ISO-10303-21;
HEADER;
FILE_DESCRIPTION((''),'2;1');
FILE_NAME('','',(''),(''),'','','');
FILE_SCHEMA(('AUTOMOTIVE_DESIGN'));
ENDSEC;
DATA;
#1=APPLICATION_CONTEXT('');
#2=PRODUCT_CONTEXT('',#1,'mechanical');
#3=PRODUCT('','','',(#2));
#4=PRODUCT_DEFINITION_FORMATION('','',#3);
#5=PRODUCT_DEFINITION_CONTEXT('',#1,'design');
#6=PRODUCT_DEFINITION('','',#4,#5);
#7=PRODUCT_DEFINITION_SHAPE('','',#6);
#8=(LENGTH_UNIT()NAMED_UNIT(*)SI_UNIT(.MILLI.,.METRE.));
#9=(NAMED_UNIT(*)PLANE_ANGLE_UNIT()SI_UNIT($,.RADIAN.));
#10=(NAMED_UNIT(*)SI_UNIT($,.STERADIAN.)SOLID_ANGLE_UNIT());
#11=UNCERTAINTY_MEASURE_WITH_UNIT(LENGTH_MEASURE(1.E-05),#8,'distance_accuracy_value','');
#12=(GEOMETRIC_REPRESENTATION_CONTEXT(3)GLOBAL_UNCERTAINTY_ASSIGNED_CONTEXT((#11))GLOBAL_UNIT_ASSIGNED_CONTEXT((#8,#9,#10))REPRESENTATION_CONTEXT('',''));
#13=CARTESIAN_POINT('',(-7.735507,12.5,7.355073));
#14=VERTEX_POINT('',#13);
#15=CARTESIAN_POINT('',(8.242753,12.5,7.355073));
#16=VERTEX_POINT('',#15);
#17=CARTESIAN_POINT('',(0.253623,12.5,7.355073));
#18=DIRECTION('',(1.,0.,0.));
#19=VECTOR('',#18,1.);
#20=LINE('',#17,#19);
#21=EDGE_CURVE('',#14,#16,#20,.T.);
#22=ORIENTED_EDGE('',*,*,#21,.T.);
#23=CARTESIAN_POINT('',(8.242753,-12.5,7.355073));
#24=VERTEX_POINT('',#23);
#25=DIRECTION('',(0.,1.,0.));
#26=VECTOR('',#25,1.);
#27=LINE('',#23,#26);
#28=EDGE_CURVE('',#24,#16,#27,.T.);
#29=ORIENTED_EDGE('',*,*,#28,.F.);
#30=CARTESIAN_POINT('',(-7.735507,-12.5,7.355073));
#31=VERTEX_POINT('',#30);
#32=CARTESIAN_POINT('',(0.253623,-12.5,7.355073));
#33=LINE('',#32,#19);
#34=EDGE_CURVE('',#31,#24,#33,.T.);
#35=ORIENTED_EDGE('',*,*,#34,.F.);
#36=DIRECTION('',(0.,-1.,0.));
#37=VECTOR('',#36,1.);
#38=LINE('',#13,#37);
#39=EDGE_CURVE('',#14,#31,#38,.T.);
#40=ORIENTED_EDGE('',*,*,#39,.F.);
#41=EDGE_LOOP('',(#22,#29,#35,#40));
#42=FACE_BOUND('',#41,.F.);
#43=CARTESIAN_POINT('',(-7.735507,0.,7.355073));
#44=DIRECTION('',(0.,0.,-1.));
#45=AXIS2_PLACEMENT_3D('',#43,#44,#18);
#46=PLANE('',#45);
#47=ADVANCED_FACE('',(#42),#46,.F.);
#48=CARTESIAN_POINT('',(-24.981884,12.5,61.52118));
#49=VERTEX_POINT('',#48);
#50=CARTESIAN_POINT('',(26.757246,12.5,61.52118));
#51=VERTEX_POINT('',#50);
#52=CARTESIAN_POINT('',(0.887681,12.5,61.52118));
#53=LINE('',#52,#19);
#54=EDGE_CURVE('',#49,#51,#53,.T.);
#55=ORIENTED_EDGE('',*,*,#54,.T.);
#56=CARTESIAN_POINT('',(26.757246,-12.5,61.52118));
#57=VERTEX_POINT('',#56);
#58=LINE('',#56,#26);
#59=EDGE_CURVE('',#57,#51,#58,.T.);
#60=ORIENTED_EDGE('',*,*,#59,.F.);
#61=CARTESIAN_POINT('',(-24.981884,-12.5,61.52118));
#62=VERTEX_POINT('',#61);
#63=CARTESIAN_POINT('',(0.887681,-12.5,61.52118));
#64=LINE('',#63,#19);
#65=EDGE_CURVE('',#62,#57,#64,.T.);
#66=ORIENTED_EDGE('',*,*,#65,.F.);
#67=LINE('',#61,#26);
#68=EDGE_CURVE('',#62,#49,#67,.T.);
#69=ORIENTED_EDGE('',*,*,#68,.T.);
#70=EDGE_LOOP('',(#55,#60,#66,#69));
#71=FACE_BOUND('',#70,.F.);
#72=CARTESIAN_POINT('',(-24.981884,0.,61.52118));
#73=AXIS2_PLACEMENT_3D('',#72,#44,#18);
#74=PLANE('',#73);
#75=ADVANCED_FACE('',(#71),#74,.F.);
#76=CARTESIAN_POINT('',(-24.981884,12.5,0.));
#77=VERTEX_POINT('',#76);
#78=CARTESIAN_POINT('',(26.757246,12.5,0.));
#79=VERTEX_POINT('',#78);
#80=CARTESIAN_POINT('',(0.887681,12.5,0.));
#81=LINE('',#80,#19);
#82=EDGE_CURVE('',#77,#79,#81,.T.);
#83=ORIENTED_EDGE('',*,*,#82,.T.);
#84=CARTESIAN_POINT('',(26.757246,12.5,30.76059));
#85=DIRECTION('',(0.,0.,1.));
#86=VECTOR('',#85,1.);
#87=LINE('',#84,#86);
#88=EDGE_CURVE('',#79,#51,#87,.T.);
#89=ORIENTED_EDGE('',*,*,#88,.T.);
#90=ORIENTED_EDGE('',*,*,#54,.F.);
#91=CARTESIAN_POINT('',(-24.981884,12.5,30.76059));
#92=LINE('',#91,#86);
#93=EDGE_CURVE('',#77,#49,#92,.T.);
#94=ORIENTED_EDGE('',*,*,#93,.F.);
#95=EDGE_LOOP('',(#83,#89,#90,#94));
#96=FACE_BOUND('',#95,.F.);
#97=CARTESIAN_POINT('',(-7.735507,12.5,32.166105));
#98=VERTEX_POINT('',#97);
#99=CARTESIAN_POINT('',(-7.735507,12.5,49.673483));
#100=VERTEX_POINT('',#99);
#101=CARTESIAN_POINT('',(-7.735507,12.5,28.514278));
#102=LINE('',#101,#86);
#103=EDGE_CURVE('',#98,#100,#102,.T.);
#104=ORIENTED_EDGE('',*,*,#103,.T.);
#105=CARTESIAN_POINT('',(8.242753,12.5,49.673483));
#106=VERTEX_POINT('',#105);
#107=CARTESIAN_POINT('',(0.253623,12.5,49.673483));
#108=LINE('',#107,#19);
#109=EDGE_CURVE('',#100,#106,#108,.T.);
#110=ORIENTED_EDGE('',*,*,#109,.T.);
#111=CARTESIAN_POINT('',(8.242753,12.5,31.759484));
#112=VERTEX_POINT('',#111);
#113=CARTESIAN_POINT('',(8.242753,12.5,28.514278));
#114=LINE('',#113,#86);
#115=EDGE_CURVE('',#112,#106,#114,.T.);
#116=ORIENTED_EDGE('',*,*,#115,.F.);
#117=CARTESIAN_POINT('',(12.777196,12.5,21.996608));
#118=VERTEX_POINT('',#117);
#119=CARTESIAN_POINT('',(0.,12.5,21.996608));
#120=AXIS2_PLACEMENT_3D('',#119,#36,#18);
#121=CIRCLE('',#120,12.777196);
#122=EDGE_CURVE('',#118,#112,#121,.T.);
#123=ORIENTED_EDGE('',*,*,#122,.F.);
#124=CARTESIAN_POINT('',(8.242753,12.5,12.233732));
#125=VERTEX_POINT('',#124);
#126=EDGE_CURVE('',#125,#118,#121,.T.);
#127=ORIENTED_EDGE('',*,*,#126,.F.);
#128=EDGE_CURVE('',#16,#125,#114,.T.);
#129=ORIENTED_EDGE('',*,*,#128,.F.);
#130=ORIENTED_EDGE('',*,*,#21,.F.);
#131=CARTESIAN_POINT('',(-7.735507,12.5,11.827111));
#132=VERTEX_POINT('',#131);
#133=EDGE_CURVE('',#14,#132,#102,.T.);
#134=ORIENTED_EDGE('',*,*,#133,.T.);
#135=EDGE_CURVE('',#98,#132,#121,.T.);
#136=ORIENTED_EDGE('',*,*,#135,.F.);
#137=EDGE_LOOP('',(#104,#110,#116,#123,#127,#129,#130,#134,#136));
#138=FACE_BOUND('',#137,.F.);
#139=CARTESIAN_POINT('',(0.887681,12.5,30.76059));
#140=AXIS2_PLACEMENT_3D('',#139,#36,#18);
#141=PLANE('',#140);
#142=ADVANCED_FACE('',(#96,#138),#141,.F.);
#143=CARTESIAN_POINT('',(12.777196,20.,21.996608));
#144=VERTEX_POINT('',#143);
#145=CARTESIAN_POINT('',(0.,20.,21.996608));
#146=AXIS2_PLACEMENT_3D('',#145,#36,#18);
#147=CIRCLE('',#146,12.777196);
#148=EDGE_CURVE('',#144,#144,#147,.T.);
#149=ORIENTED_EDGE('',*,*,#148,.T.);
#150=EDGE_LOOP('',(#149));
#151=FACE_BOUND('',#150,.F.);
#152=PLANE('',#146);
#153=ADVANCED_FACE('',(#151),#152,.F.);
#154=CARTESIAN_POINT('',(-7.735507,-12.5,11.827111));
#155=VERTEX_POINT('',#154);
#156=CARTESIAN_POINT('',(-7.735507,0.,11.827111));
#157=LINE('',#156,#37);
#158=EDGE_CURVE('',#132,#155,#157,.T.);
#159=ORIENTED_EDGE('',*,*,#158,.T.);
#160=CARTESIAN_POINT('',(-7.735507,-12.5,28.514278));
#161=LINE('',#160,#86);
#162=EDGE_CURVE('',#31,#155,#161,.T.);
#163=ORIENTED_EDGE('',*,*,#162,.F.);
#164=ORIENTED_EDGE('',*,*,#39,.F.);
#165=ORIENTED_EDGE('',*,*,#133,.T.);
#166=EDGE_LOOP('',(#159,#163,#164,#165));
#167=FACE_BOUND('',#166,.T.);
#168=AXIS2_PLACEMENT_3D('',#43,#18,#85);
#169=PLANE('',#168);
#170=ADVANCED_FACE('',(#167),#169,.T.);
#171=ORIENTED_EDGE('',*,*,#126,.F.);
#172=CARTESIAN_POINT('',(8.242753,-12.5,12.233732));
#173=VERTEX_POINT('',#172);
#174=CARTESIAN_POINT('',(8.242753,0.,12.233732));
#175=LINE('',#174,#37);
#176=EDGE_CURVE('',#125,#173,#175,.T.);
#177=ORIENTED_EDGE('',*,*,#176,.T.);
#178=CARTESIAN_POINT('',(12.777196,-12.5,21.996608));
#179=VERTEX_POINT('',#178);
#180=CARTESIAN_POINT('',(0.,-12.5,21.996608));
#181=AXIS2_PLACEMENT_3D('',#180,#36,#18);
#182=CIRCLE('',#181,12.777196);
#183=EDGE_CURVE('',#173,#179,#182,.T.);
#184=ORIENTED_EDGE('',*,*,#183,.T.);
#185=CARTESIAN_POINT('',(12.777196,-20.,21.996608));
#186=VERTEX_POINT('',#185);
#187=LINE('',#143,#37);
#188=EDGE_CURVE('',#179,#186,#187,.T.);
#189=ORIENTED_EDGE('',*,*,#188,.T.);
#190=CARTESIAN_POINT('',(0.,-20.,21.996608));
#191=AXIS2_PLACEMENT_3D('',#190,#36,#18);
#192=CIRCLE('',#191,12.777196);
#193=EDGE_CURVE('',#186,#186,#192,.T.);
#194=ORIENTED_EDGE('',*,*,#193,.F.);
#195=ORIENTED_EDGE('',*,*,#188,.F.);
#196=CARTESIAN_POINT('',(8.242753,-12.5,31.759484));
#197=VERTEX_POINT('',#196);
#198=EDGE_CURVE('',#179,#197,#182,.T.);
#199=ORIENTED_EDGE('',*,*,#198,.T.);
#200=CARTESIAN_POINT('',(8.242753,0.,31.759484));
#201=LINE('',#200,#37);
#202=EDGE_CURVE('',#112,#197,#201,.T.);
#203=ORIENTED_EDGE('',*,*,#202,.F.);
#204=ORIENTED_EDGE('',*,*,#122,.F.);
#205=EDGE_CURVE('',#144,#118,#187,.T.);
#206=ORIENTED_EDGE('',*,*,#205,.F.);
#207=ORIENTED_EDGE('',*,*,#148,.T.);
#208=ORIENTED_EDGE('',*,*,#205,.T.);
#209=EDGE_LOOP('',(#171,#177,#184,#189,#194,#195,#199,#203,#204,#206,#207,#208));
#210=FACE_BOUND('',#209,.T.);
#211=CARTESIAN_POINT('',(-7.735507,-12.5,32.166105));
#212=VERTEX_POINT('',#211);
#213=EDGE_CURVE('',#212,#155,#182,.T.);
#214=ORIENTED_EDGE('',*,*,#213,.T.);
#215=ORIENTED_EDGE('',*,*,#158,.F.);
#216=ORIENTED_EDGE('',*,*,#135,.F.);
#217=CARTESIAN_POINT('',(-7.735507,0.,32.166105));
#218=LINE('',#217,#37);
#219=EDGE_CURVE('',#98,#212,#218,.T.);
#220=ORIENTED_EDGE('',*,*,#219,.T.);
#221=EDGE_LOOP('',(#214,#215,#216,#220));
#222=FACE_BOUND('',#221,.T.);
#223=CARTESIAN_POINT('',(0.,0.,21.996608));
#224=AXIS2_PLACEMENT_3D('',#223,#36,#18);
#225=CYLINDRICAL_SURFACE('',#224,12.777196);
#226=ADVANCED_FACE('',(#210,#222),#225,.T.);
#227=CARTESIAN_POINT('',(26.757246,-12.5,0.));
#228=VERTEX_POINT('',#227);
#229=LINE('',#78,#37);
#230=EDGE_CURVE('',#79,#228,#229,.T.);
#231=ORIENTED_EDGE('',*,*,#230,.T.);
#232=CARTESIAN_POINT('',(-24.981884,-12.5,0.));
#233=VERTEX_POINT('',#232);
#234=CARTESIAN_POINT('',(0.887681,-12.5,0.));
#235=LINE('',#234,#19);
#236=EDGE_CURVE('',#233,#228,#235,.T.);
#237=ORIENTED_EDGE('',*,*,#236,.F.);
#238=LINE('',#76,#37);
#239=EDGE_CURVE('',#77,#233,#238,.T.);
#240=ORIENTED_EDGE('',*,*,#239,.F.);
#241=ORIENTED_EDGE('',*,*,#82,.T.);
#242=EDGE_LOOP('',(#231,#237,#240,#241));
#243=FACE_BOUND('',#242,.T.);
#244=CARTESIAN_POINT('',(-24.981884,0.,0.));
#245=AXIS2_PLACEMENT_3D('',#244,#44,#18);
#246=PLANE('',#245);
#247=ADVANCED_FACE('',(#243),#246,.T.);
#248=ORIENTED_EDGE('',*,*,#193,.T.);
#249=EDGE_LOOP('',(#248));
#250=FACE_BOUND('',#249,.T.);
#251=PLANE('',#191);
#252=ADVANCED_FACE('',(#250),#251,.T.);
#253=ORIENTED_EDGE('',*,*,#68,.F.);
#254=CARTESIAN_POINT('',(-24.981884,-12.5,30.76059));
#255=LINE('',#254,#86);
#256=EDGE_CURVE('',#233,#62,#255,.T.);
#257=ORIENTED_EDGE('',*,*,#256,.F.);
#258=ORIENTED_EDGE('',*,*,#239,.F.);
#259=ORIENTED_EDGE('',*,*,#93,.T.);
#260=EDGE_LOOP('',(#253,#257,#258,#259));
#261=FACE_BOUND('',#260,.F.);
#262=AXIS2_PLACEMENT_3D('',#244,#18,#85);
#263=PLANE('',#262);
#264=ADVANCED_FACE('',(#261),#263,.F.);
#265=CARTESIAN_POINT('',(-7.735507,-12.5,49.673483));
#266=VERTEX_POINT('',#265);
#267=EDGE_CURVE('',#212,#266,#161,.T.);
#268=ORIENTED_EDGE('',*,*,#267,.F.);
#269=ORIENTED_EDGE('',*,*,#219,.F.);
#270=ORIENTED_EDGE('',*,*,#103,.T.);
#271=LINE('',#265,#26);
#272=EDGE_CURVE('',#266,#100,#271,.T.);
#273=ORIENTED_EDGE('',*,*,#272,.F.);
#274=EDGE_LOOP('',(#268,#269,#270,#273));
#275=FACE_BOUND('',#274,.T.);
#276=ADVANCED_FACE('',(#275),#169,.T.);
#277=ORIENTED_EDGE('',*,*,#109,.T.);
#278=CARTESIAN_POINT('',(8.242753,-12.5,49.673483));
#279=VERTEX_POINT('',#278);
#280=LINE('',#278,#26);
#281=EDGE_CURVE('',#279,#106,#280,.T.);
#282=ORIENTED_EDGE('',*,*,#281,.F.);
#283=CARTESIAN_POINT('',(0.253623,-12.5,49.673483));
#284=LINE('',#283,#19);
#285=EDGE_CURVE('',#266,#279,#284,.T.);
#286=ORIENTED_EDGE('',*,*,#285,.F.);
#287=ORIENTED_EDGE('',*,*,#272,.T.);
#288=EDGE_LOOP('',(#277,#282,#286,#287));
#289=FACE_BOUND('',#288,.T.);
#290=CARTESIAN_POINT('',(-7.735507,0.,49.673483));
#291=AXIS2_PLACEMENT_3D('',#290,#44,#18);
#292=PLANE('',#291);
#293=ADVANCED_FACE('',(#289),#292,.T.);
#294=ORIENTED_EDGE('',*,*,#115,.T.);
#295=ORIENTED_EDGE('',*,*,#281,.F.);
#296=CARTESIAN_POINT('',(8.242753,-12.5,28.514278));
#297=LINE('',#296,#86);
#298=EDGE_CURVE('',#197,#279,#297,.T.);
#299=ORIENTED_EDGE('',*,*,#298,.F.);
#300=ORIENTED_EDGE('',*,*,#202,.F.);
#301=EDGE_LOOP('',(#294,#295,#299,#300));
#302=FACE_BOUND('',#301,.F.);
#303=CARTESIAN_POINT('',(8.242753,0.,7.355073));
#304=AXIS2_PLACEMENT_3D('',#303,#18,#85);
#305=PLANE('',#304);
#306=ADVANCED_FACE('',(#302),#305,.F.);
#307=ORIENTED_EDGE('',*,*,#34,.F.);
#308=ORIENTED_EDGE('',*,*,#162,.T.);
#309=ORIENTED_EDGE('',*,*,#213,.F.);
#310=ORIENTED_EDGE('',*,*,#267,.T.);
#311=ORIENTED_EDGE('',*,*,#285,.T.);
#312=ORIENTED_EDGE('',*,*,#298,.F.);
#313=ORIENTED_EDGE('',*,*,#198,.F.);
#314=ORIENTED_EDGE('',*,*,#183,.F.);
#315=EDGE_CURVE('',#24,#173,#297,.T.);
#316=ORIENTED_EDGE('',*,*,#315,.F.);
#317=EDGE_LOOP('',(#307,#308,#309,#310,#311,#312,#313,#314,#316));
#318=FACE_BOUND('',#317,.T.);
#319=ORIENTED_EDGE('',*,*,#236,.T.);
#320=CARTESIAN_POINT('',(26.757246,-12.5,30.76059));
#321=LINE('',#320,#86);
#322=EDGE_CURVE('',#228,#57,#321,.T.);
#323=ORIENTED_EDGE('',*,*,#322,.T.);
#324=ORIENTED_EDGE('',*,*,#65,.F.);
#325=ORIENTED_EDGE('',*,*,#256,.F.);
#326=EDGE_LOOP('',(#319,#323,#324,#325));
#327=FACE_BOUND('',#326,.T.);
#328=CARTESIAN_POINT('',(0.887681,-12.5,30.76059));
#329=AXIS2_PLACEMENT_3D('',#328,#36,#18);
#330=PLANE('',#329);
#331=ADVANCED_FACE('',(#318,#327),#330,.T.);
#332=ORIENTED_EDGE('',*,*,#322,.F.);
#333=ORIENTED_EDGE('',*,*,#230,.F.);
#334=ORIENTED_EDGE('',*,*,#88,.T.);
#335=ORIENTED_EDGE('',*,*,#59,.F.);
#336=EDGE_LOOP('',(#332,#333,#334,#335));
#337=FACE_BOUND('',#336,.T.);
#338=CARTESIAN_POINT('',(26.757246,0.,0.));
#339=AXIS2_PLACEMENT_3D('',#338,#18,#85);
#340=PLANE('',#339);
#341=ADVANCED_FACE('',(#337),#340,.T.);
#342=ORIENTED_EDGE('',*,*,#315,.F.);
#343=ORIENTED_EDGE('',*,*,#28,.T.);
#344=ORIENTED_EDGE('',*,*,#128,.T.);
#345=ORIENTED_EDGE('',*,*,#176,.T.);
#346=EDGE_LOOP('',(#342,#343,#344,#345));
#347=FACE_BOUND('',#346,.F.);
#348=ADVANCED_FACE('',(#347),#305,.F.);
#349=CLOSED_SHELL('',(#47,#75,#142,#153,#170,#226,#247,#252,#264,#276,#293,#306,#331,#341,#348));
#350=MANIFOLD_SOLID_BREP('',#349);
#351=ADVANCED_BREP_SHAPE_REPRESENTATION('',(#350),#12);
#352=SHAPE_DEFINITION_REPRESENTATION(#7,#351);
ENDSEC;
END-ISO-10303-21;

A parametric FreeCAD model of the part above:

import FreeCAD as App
import Part
import Sketcher
from FreeCAD import Vector
Q = App.Units.Quantity

doc = App.newDocument("Part")
body = doc.addObject("PartDesign::Body", "Body")

# Sketch on XZ plane
sketch1 = body.newObject("Sketcher::SketchObject", "Sketch")
sketch1.AttachmentSupport = (doc.getObject("XZ_Plane"), [""])
sketch1.MapMode = "FlatFace"
sketch1.addGeometry([
    Part.LineSegment(Vector(-25, 62, 0), Vector(-25, 0, 0)),  # 0
    Part.LineSegment(Vector(-25, 0, 0), Vector(27, 0, 0)),  # 1
    Part.LineSegment(Vector(27, 0, 0), Vector(27, 62, 0)),  # 2
    Part.LineSegment(Vector(27, 62, 0), Vector(-25, 62, 0)),  # 3
    Part.LineSegment(Vector(8, 7, 0), Vector(-8, 7, 0)),  # 4
    Part.LineSegment(Vector(-8, 7, 0), Vector(-8, 50, 0)),  # 5
    Part.LineSegment(Vector(-8, 50, 0), Vector(8, 50, 0)),  # 6
    Part.LineSegment(Vector(8, 50, 0), Vector(8, 7, 0)),  # 7
], False)
sketch1.addConstraint([
    Sketcher.Constraint("Coincident", 0, 2, 1, 1),
    Sketcher.Constraint("Coincident", 1, 2, 2, 1),
    Sketcher.Constraint("Coincident", 2, 2, 3, 1),
    Sketcher.Constraint("Coincident", 3, 2, 0, 1),
    Sketcher.Constraint("Coincident", 4, 2, 5, 1),
    Sketcher.Constraint("Coincident", 5, 2, 6, 1),
    Sketcher.Constraint("Coincident", 6, 2, 7, 1),
    Sketcher.Constraint("Coincident", 7, 2, 4, 1),
    Sketcher.Constraint("Vertical", 0),
    Sketcher.Constraint("Horizontal", 1),
    Sketcher.Constraint("Vertical", 2),
    Sketcher.Constraint("Horizontal", 3),
    Sketcher.Constraint("Horizontal", 4),
    Sketcher.Constraint("Vertical", 5),
    Sketcher.Constraint("Horizontal", 6),
    Sketcher.Constraint("Vertical", 7),
    Sketcher.Constraint("PointOnObject", 0, 2, -1),
    Sketcher.Constraint("DistanceX", 1, 1, 1, 2, Q("51.73913 mm")),
    Sketcher.Constraint("DistanceX", 4, 2, 4, 1, Q("15.978261 mm")),
    Sketcher.Constraint("DistanceY", 0, 2, 0, 1, Q("61.52118 mm")),
    Sketcher.Constraint("DistanceY", 5, 1, 5, 2, Q("42.31841 mm")),
    Sketcher.Constraint("DistanceX", 0, 2, -1, 1, Q("24.981884 mm")),
    Sketcher.Constraint("DistanceX", 4, 2, -1, 1, Q("7.735507 mm")),
    Sketcher.Constraint("DistanceY", -1, 1, 4, 2, Q("7.355073 mm")),
])
pad1 = body.newObject("PartDesign::Pad", "Pad")
pad1.Profile = sketch1
pad1.Length = 25
pad1.Midplane = True

# Sketch on XZ plane
sketch2 = body.newObject("Sketcher::SketchObject", "Sketch001")
sketch2.AttachmentSupport = (doc.getObject("XZ_Plane"), [""])
sketch2.MapMode = "FlatFace"
sketch2.addGeometry(Part.Circle(Vector(0, 22, 0), Vector(0, 0, 1), 13), False)
sketch2.addConstraint([
    Sketcher.Constraint("PointOnObject", 0, 3, -2),
    Sketcher.Constraint("Diameter", 0, Q("25.554392 mm")),
    Sketcher.Constraint("DistanceY", -1, 1, 0, 3, Q("21.996608 mm")),
])
pad2 = body.newObject("PartDesign::Pad", "Pad001")
pad2.Profile = sketch2
pad2.Length = 40
pad2.Midplane = True

doc.recompute()
